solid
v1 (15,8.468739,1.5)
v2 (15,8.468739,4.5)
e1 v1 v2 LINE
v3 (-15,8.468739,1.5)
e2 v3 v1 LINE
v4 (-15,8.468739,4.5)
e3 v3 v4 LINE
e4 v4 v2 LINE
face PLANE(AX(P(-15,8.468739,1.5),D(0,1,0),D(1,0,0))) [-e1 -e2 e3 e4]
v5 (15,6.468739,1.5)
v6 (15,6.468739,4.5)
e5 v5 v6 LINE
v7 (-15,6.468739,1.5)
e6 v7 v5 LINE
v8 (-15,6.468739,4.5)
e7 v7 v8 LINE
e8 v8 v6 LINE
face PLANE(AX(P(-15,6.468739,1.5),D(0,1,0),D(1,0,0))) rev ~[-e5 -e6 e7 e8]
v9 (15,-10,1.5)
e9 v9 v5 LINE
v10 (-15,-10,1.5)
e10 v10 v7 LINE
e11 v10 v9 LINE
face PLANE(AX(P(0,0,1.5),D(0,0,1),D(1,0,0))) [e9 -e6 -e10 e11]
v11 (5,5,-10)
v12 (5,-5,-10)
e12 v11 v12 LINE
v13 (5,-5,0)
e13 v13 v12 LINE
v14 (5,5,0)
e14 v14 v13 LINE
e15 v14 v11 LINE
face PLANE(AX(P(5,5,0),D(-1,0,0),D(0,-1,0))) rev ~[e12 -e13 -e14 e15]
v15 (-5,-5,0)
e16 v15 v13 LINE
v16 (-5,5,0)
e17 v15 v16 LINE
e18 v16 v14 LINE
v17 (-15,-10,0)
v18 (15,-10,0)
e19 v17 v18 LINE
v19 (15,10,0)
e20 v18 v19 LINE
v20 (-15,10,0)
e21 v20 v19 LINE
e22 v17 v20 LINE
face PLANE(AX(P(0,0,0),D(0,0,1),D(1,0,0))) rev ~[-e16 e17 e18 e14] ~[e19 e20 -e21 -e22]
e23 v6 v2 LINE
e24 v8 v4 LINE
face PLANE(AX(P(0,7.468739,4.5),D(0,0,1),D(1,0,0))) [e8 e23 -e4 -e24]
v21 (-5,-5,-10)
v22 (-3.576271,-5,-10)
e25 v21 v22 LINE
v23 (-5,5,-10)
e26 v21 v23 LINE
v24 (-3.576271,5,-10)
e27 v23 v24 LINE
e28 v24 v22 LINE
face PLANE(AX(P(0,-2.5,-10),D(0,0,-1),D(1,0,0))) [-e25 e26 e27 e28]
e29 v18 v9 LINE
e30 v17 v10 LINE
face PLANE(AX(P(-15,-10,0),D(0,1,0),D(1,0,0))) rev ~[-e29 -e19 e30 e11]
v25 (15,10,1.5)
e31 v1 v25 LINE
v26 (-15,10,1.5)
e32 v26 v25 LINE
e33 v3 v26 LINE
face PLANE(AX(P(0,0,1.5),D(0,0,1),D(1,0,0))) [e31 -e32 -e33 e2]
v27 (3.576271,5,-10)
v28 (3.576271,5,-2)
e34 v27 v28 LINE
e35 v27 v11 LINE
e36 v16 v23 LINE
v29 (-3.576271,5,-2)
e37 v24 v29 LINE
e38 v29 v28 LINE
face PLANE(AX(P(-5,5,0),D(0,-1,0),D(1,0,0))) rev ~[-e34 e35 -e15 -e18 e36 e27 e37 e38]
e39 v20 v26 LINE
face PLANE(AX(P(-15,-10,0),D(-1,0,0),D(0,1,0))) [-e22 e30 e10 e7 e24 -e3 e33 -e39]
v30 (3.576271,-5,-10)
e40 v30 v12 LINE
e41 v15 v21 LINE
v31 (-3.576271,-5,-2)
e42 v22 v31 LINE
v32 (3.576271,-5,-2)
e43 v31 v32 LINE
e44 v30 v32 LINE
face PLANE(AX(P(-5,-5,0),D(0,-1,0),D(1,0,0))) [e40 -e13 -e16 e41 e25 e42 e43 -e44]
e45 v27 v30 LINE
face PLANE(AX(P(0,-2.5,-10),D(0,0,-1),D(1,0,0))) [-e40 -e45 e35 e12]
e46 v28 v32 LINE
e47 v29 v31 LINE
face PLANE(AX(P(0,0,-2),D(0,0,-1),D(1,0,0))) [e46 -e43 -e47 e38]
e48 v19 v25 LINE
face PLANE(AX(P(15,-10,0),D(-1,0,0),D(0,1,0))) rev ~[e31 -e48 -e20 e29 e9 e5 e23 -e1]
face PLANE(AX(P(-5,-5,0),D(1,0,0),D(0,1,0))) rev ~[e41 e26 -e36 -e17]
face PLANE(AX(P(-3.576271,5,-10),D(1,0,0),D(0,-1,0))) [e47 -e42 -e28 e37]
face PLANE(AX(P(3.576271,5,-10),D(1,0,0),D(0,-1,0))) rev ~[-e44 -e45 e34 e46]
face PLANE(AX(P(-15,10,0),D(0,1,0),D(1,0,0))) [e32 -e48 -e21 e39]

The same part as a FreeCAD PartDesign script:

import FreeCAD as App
import Part
import Sketcher

doc = App.newDocument("Part")
body = doc.addObject("PartDesign::Body", "Body")

sketch1 = doc.addObject("Sketcher::SketchObject", "Sketch")
body.addObject(sketch1)
sketch1.AttachmentSupport = (doc.XY_Plane, [""])
sketch1.MapMode = "FlatFace"
sketch1.addGeometry([
    Part.LineSegment(App.Vector(-15, 10, 0), App.Vector(-15, -10, 0)),
    Part.LineSegment(App.Vector(-15, -10, 0), App.Vector(15, -10, 0)),
    Part.LineSegment(App.Vector(15, -10, 0), App.Vector(15, 10, 0)),
    Part.LineSegment(App.Vector(15, 10, 0), App.Vector(-15, 10, 0)),
], False)
sketch1.addConstraint([
    Sketcher.Constraint("Coincident", 0, 2, 1, 1),
    Sketcher.Constraint("Coincident", 1, 2, 2, 1),
    Sketcher.Constraint("Coincident", 2, 2, 3, 1),
    Sketcher.Constraint("Coincident", 3, 2, 0, 1),
    Sketcher.Constraint("Vertical", 0),
    Sketcher.Constraint("Horizontal", 1),
    Sketcher.Constraint("Vertical", 2),
    Sketcher.Constraint("Horizontal", 3),
    Sketcher.Constraint("Symmetric", 0, 2, 2, 2, -1, 1),
    Sketcher.Constraint("DistanceX", 1, 1, 1, 2, 30.0),
    Sketcher.Constraint("DistanceY", 0, 2, 0, 1, 20.0),
])
pad1 = doc.addObject("PartDesign::Pad", "Pad")
body.addObject(pad1)
pad1.Profile = sketch1
pad1.Length = 1.5

sketch2 = doc.addObject("Sketcher::SketchObject", "Sketch001")
body.addObject(sketch2)
sketch2.AttachmentSupport = (doc.XY_Plane, [""])
sketch2.MapMode = "FlatFace"
sketch2.AttachmentOffset = App.Placement(App.Vector(0, 0, 1.5), App.Rotation())
sketch2.addGeometry([
    Part.LineSegment(App.Vector(-15, 8.5, 0), App.Vector(-15, 6.5, 0)),
    Part.LineSegment(App.Vector(-15, 6.5, 0), App.Vector(15, 6.5, 0)),
    Part.LineSegment(App.Vector(15, 6.5, 0), App.Vector(15, 8.5, 0)),
    Part.LineSegment(App.Vector(15, 8.5, 0), App.Vector(-15, 8.5, 0)),
], False)
sketch2.addConstraint([
    Sketcher.Constraint("Coincident", 0, 2, 1, 1),
    Sketcher.Constraint("Coincident", 1, 2, 2, 1),
    Sketcher.Constraint("Coincident", 2, 2, 3, 1),
    Sketcher.Constraint("Coincident", 3, 2, 0, 1),
    Sketcher.Constraint("Vertical", 0),
    Sketcher.Constraint("Horizontal", 1),
    Sketcher.Constraint("Vertical", 2),
    Sketcher.Constraint("Horizontal", 3),
    Sketcher.Constraint("DistanceX", 1, 1, 1, 2, 30.0),
    Sketcher.Constraint("DistanceY", 0, 2, 0, 1, 2.0),
    Sketcher.Constraint("DistanceX", 0, 2, -1, 1, 15.0),
    Sketcher.Constraint("DistanceY", -1, 1, 0, 2, 6.468739),
])
pad2 = doc.addObject("PartDesign::Pad", "Pad001")
body.addObject(pad2)
pad2.Profile = sketch2
pad2.Length = 3

sketch3 = doc.addObject("Sketcher::SketchObject", "Sketch002")
body.addObject(sketch3)
sketch3.AttachmentSupport = (doc.XY_Plane, [""])
sketch3.MapMode = "FlatFace"
sketch3.addGeometry([
    Part.LineSegment(App.Vector(-5, -5, 0), App.Vector(-5, 5, 0)),
    Part.LineSegment(App.Vector(-5, 5, 0), App.Vector(5, 5, 0)),
    Part.LineSegment(App.Vector(5, 5, 0), App.Vector(5, -5, 0)),
    Part.LineSegment(App.Vector(5, -5, 0), App.Vector(-5, -5, 0)),
], False)
sketch3.addConstraint([
    Sketcher.Constraint("Coincident", 0, 2, 1, 1),
    Sketcher.Constraint("Coincident", 1, 2, 2, 1),
    Sketcher.Constraint("Coincident", 2, 2, 3, 1),
    Sketcher.Constraint("Coincident", 3, 2, 0, 1),
    Sketcher.Constraint("Vertical", 0),
    Sketcher.Constraint("Horizontal", 1),
    Sketcher.Constraint("Vertical", 2),
    Sketcher.Constraint("Horizontal", 3),
    Sketcher.Constraint("Symmetric", 0, 2, 2, 2, -1, 1),
    Sketcher.Constraint("Equal", 3, 0),
    Sketcher.Constraint("DistanceX", 1, 1, 1, 2, 10.0),
])
pad3 = doc.addObject("PartDesign::Pad", "Pad002")
body.addObject(pad3)
pad3.Profile = sketch3
pad3.Length = 10
pad3.Reversed = True

sketch4 = doc.addObject("Sketcher::SketchObject", "Sketch003")
body.addObject(sketch4)
sketch4.AttachmentSupport = (doc.XY_Plane, [""])
sketch4.MapMode = "FlatFace"
sketch4.AttachmentOffset = App.Placement(App.Vector(0, 0, -10), App.Rotation())
sketch4.addGeometry([
    Part.LineSegment(App.Vector(-4, -5, 0), App.Vector(-4, 5, 0)),
    Part.LineSegment(App.Vector(-4, 5, 0), App.Vector(4, 5, 0)),
    Part.LineSegment(App.Vector(4, 5, 0), App.Vector(4, -5, 0)),
    Part.LineSegment(App.Vector(4, -5, 0), App.Vector(-4, -5, 0)),
], False)
sketch4.addConstraint([
    Sketcher.Constraint("Coincident", 0, 2, 1, 1),
    Sketcher.Constraint("Coincident", 1, 2, 2, 1),
    Sketcher.Constraint("Coincident", 2, 2, 3, 1),
    Sketcher.Constraint("Coincident", 3, 2, 0, 1),
    Sketcher.Constraint("Vertical", 0),
    Sketcher.Constraint("Horizontal", 1),
    Sketcher.Constraint("Vertical", 2),
    Sketcher.Constraint("Horizontal", 3),
    Sketcher.Constraint("Symmetric", 0, 2, 2, 2, -1, 1),
    Sketcher.Constraint("DistanceY", 0, 1, 0, 2, 10.0),
    Sketcher.Constraint("DistanceX", 1, 1, 1, 2, 7.152542),
])
pocket1 = doc.addObject("PartDesign::Pocket", "Pocket")
body.addObject(pocket1)
pocket1.Profile = sketch4
pocket1.Length = 8
pocket1.Reversed = True

doc.recompute()
